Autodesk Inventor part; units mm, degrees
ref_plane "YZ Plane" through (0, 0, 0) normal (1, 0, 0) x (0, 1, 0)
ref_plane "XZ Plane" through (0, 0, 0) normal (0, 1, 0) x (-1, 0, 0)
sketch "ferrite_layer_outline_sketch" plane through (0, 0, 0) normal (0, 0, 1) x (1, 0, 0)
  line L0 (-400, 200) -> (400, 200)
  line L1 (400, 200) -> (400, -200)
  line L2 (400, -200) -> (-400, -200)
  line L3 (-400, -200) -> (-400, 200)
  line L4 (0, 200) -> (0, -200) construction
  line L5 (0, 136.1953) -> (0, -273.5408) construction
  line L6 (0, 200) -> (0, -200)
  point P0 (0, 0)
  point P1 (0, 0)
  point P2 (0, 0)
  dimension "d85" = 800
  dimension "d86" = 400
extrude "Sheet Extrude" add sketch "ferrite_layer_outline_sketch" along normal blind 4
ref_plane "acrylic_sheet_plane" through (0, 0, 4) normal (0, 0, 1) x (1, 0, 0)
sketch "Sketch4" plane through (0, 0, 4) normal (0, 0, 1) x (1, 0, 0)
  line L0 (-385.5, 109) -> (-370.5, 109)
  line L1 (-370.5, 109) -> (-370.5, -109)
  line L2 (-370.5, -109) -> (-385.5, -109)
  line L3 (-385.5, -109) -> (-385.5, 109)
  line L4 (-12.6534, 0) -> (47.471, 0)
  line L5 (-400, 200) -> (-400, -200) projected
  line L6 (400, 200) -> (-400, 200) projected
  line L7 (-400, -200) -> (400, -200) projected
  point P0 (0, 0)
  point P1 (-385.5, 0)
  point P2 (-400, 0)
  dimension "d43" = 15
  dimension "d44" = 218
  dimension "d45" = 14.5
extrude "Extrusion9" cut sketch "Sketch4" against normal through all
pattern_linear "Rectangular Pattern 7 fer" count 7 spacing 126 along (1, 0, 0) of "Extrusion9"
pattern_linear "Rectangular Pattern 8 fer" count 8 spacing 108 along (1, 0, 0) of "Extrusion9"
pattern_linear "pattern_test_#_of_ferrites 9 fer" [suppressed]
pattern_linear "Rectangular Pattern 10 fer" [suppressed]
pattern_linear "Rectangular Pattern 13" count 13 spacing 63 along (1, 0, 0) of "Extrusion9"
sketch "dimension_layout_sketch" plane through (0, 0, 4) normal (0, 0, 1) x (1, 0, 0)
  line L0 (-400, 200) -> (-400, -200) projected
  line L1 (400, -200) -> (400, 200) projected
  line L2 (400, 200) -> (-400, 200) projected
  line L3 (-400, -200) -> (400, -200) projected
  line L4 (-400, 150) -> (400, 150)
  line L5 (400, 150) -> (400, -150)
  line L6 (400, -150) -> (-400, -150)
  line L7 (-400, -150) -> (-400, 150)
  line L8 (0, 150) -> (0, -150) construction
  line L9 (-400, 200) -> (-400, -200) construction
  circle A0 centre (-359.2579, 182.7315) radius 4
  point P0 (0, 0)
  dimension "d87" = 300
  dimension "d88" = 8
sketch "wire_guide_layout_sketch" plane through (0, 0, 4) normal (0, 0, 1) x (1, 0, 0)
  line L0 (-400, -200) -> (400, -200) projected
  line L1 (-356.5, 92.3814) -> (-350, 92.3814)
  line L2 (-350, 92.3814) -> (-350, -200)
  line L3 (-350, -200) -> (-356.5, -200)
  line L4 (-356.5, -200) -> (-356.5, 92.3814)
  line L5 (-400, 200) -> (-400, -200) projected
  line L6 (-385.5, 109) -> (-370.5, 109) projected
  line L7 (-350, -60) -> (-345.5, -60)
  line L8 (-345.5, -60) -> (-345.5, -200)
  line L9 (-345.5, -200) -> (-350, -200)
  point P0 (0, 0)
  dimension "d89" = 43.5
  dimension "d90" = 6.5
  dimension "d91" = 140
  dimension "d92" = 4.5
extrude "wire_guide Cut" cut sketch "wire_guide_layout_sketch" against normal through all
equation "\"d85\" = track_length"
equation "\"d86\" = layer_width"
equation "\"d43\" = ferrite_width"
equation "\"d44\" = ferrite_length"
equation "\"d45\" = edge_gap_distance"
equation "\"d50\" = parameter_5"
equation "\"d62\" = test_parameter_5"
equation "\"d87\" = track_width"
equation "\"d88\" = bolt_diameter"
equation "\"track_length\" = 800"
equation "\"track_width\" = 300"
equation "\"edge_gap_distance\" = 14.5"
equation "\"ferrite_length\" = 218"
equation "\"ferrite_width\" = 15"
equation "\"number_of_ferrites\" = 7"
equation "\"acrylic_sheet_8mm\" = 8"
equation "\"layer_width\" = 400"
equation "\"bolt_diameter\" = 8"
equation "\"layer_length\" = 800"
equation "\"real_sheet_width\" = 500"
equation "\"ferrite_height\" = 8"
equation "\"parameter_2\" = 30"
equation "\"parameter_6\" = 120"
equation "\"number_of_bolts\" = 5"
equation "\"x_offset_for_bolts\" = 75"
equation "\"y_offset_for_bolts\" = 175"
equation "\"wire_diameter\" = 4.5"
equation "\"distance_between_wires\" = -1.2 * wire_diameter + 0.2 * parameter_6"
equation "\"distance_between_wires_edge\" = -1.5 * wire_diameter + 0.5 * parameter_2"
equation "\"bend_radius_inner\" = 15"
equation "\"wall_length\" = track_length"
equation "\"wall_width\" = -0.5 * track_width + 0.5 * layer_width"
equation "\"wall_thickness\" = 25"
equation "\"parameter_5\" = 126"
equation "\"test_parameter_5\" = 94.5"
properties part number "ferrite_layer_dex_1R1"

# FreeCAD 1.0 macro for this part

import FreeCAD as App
import Part
import Sketcher
Q = App.Units.Quantity

doc = App.newDocument("Part")
body = doc.addObject("PartDesign::Body", "Body")

# Sketch on XY plane
sketch1 = doc.addObject("Sketcher::SketchObject", "Sketch")
body.addObject(sketch1)
sketch1.AttachmentSupport = (doc.XY_Plane, [""])
sketch1.MapMode = "FlatFace"
sketch1.addGeometry([
    Part.LineSegment(App.Vector(-400, 200, 0), App.Vector(-400, -200, 0)),
    Part.LineSegment(App.Vector(-400, -200, 0), App.Vector(400, -200, 0)),
    Part.LineSegment(App.Vector(400, -200, 0), App.Vector(400, 200, 0)),
    Part.LineSegment(App.Vector(400, 200, 0), App.Vector(-400, 200, 0)),
], False)
sketch1.addConstraint([
    Sketcher.Constraint("Coincident", 0, 2, 1, 1),
    Sketcher.Constraint("Coincident", 1, 2, 2, 1),
    Sketcher.Constraint("Coincident", 2, 2, 3, 1),
    Sketcher.Constraint("Coincident", 3, 2, 0, 1),
    Sketcher.Constraint("Vertical", 0),
    Sketcher.Constraint("Horizontal", 1),
    Sketcher.Constraint("Vertical", 2),
    Sketcher.Constraint("Horizontal", 3),
    Sketcher.Constraint("Symmetric", 0, 2, 2, 2, -1, 1),
    Sketcher.Constraint("DistanceX", 1, 1, 1, 2, Q("800 mm")),
    Sketcher.Constraint("DistanceY", 0, 2, 0, 1, Q("400 mm")),
])
pad1 = doc.addObject("PartDesign::Pad", "Pad")
body.addObject(pad1)
pad1.Profile = sketch1
pad1.Length = 4

# Sketch on XY plane
sketch2 = doc.addObject("Sketcher::SketchObject", "Sketch001")
body.addObject(sketch2)
sketch2.AttachmentSupport = (doc.XY_Plane, [""])
sketch2.MapMode = "FlatFace"
sketch2.AttachmentOffset = App.Placement(App.Vector(0, 0, 4), App.Rotation())
sketch2.addGeometry([
    Part.LineSegment(App.Vector(-370.5, 109, 0), App.Vector(-385.5, 109, 0)),
    Part.LineSegment(App.Vector(-385.5, 109, 0), App.Vector(-385.5, -109, 0)),
    Part.LineSegment(App.Vector(-385.5, -109, 0), App.Vector(-370.5, -109, 0)),
    Part.LineSegment(App.Vector(-370.5, -109, 0), App.Vector(-370.5, 109, 0)),
], False)
sketch2.addConstraint([
    Sketcher.Constraint("Coincident", 0, 2, 1, 1),
    Sketcher.Constraint("Coincident", 1, 2, 2, 1),
    Sketcher.Constraint("Coincident", 2, 2, 3, 1),
    Sketcher.Constraint("Coincident", 3, 2, 0, 1),
    Sketcher.Constraint("Horizontal", 0),
    Sketcher.Constraint("Vertical", 1),
    Sketcher.Constraint("Horizontal", 2),
    Sketcher.Constraint("Vertical", 3),
    Sketcher.Constraint("DistanceX", 0, 2, 0, 1, Q("15 mm")),
    Sketcher.Constraint("DistanceY", 1, 2, 1, 1, Q("218 mm")),
    Sketcher.Constraint("DistanceY", -1, 1, 0, 2, Q("109 mm")),
    Sketcher.Constraint("DistanceX", 0, 2, -1, 1, Q("385.5 mm")),
])
pocket1 = doc.addObject("PartDesign::Pocket", "Pocket")
body.addObject(pocket1)
pocket1.Profile = sketch2
pocket1.Type = "ThroughAll"
doc.recompute()

linearpattern = doc.addObject("PartDesign::LinearPattern", "LinearPattern")
body.addObject(linearpattern)
linearpattern.Originals = [pocket1]
linearpattern.Direction = (doc.X_Axis, [""])
linearpattern.Mode = "offset"
linearpattern.Offset = 126
linearpattern.Occurrences = 7
body.Tip = linearpattern
doc.recompute()

linearpattern2 = doc.addObject("PartDesign::LinearPattern", "LinearPattern001")
body.addObject(linearpattern2)
linearpattern2.Originals = [pocket1]
linearpattern2.Direction = (doc.X_Axis, [""])
linearpattern2.Mode = "offset"
linearpattern2.Offset = 108
linearpattern2.Occurrences = 8
body.Tip = linearpattern2
doc.recompute()

linearpattern3 = doc.addObject("PartDesign::LinearPattern", "LinearPattern002")
body.addObject(linearpattern3)
linearpattern3.Originals = [pocket1]
linearpattern3.Direction = (doc.X_Axis, [""])
linearpattern3.Mode = "offset"
linearpattern3.Offset = 63
linearpattern3.Occurrences = 13
body.Tip = linearpattern3

# Sketch on XY plane
sketch3 = doc.addObject("Sketcher::SketchObject", "Sketch002")
body.addObject(sketch3)
sketch3.AttachmentSupport = (doc.XY_Plane, [""])
sketch3.MapMode = "FlatFace"
sketch3.AttachmentOffset = App.Placement(App.Vector(0, 0, 4), App.Rotation())
sketch3.addGeometry([
    Part.LineSegment(App.Vector(-356.5, 92.3814, 0), App.Vector(-356.5, -200, 0)),  # 0
    Part.LineSegment(App.Vector(-356.5, -200, 0), App.Vector(-345.5, -200, 0)),  # 1
    Part.LineSegment(App.Vector(-345.5, -200, 0), App.Vector(-345.5, -60, 0)),  # 2
    Part.LineSegment(App.Vector(-345.5, -60, 0), App.Vector(-350, -60, 0)),  # 3
    Part.LineSegment(App.Vector(-350, -60, 0), App.Vector(-350, 92.3814, 0)),  # 4
    Part.LineSegment(App.Vector(-350, 92.3814, 0), App.Vector(-356.5, 92.3814, 0)),  # 5
], False)
sketch3.addConstraint([
    Sketcher.Constraint("Coincident", 0, 2, 1, 1),
    Sketcher.Constraint("Coincident", 1, 2, 2, 1),
    Sketcher.Constraint("Coincident", 2, 2, 3, 1),
    Sketcher.Constraint("Coincident", 3, 2, 4, 1),
    Sketcher.Constraint("Coincident", 4, 2, 5, 1),
    Sketcher.Constraint("Coincident", 5, 2, 0, 1),
    Sketcher.Constraint("Vertical", 0),
    Sketcher.Constraint("Horizontal", 1),
    Sketcher.Constraint("Vertical", 2),
    Sketcher.Constraint("Horizontal", 3),
    Sketcher.Constraint("Vertical", 4),
    Sketcher.Constraint("Horizontal", 5),
    Sketcher.Constraint("DistanceY", 2, 1, 2, 2, Q("140 mm")),
    Sketcher.Constraint("DistanceX", 3, 2, 3, 1, Q("4.5 mm")),
    Sketcher.Constraint("DistanceX", 5, 2, 5, 1, Q("6.5 mm")),
    Sketcher.Constraint("DistanceY", 0, 2, -1, 1, Q("200 mm")),
    Sketcher.Constraint("DistanceX", 3, 2, -1, 1, Q("350 mm")),
    Sketcher.Constraint("DistanceY", 0, 2, 0, 1, Q("292.3814 mm")),
])
pocket2 = doc.addObject("PartDesign::Pocket", "Pocket001")
body.addObject(pocket2)
pocket2.Profile = sketch3
pocket2.Type = "ThroughAll"

doc.recompute()
